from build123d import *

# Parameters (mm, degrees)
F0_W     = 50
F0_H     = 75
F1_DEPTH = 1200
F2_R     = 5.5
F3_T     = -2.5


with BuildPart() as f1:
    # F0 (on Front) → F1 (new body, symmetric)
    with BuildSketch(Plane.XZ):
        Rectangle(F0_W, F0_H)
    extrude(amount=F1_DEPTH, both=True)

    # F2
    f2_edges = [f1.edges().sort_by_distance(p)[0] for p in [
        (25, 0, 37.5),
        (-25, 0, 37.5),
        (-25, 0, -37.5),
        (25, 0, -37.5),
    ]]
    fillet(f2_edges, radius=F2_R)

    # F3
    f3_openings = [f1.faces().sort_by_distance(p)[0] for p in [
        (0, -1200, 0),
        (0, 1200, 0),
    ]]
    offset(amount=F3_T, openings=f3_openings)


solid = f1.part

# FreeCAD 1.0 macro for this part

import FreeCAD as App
import Part
import Sketcher
from FreeCAD import Vector


def edges_at(feature, points):
    """Names of the edges that pass closest to the given points."""
    edges = feature.Shape.Edges
    near = lambda p: min(range(len(edges)), key=lambda i: edges[i].distToShape(Part.Vertex(*p))[0])
    return sorted({f"Edge{near(p) + 1}" for p in points})


def faces_at(feature, points):
    """Names of the faces that lie closest to the given points."""
    faces = feature.Shape.Faces
    near = lambda p: min(range(len(faces)), key=lambda i: faces[i].distToShape(Part.Vertex(*p))[0])
    return sorted({f"Face{near(p) + 1}" for p in points})

doc = App.newDocument("Part")
params = doc.addObject("Spreadsheet::Sheet", "Params")
for row, (alias, value) in enumerate([
    ("sketch1_width", "50 mm"),
    ("sketch1_height", "75 mm"),
    ("pad1_length", "2400 mm"),
    ("fillet_radius", "5.5 mm"),
    ("thickness_wall", "2.5 mm"),
], start=1):
    params.set(f"A{row}", alias)
    params.set(f"B{row}", "=" + value)
    params.setAlias(f"B{row}", alias)

body = doc.addObject("PartDesign::Body", "Body")

# Sketch on XZ plane
sketch1 = body.newObject("Sketcher::SketchObject", "Sketch")
sketch1.AttachmentSupport = (doc.getObject("XZ_Plane"), [""])
sketch1.MapMode = "FlatFace"
sketch1.addGeometry([
    Part.LineSegment(Vector(-25, 37.5, 0), Vector(-25, -37.5, 0)),
    Part.LineSegment(Vector(-25, -37.5, 0), Vector(25, -37.5, 0)),
    Part.LineSegment(Vector(25, -37.5, 0), Vector(25, 37.5, 0)),
    Part.LineSegment(Vector(25, 37.5, 0), Vector(-25, 37.5, 0)),
], False)
sketch1.addConstraint([
    Sketcher.Constraint("Coincident", 0, 2, 1, 1),
    Sketcher.Constraint("Coincident", 1, 2, 2, 1),
    Sketcher.Constraint("Coincident", 2, 2, 3, 1),
    Sketcher.Constraint("Coincident", 3, 2, 0, 1),
    Sketcher.Constraint("Vertical", 0),
    Sketcher.Constraint("Horizontal", 1),
    Sketcher.Constraint("Vertical", 2),
    Sketcher.Constraint("Horizontal", 3),
    Sketcher.Constraint("Symmetric", 0, 2, 2, 2, -1, 1),
    Sketcher.Constraint("DistanceX", 1, 1, 1, 2, 50.0),
    Sketcher.Constraint("DistanceY", 0, 2, 0, 1, 75.0),
])
sketch1.setExpression("Constraints[9]", "Params.sketch1_width")
sketch1.setExpression("Constraints[10]", "Params.sketch1_height")
pad1 = body.newObject("PartDesign::Pad", "Pad")
pad1.Profile = sketch1
pad1.setExpression("Length", "Params.pad1_length")
pad1.Midplane = True
doc.recompute()

fillet = body.newObject("PartDesign::Fillet", "Fillet")
fillet.Base = (pad1, edges_at(pad1, [
    (25, 0, 37.5),
    (-25, 0, 37.5),
    (-25, 0, -37.5),
    (25, 0, -37.5),
]))
fillet.setExpression("Radius", "Params.fillet_radius")
doc.recompute()

thickness = body.newObject("PartDesign::Thickness", "Thickness")
thickness.Base = (fillet, faces_at(fillet, [(0, -1200, 0), (0, 1200, 0)]))
thickness.setExpression("Value", "Params.thickness_wall")
thickness.Reversed = True
thickness.Join = "Arc"

doc.recompute()
